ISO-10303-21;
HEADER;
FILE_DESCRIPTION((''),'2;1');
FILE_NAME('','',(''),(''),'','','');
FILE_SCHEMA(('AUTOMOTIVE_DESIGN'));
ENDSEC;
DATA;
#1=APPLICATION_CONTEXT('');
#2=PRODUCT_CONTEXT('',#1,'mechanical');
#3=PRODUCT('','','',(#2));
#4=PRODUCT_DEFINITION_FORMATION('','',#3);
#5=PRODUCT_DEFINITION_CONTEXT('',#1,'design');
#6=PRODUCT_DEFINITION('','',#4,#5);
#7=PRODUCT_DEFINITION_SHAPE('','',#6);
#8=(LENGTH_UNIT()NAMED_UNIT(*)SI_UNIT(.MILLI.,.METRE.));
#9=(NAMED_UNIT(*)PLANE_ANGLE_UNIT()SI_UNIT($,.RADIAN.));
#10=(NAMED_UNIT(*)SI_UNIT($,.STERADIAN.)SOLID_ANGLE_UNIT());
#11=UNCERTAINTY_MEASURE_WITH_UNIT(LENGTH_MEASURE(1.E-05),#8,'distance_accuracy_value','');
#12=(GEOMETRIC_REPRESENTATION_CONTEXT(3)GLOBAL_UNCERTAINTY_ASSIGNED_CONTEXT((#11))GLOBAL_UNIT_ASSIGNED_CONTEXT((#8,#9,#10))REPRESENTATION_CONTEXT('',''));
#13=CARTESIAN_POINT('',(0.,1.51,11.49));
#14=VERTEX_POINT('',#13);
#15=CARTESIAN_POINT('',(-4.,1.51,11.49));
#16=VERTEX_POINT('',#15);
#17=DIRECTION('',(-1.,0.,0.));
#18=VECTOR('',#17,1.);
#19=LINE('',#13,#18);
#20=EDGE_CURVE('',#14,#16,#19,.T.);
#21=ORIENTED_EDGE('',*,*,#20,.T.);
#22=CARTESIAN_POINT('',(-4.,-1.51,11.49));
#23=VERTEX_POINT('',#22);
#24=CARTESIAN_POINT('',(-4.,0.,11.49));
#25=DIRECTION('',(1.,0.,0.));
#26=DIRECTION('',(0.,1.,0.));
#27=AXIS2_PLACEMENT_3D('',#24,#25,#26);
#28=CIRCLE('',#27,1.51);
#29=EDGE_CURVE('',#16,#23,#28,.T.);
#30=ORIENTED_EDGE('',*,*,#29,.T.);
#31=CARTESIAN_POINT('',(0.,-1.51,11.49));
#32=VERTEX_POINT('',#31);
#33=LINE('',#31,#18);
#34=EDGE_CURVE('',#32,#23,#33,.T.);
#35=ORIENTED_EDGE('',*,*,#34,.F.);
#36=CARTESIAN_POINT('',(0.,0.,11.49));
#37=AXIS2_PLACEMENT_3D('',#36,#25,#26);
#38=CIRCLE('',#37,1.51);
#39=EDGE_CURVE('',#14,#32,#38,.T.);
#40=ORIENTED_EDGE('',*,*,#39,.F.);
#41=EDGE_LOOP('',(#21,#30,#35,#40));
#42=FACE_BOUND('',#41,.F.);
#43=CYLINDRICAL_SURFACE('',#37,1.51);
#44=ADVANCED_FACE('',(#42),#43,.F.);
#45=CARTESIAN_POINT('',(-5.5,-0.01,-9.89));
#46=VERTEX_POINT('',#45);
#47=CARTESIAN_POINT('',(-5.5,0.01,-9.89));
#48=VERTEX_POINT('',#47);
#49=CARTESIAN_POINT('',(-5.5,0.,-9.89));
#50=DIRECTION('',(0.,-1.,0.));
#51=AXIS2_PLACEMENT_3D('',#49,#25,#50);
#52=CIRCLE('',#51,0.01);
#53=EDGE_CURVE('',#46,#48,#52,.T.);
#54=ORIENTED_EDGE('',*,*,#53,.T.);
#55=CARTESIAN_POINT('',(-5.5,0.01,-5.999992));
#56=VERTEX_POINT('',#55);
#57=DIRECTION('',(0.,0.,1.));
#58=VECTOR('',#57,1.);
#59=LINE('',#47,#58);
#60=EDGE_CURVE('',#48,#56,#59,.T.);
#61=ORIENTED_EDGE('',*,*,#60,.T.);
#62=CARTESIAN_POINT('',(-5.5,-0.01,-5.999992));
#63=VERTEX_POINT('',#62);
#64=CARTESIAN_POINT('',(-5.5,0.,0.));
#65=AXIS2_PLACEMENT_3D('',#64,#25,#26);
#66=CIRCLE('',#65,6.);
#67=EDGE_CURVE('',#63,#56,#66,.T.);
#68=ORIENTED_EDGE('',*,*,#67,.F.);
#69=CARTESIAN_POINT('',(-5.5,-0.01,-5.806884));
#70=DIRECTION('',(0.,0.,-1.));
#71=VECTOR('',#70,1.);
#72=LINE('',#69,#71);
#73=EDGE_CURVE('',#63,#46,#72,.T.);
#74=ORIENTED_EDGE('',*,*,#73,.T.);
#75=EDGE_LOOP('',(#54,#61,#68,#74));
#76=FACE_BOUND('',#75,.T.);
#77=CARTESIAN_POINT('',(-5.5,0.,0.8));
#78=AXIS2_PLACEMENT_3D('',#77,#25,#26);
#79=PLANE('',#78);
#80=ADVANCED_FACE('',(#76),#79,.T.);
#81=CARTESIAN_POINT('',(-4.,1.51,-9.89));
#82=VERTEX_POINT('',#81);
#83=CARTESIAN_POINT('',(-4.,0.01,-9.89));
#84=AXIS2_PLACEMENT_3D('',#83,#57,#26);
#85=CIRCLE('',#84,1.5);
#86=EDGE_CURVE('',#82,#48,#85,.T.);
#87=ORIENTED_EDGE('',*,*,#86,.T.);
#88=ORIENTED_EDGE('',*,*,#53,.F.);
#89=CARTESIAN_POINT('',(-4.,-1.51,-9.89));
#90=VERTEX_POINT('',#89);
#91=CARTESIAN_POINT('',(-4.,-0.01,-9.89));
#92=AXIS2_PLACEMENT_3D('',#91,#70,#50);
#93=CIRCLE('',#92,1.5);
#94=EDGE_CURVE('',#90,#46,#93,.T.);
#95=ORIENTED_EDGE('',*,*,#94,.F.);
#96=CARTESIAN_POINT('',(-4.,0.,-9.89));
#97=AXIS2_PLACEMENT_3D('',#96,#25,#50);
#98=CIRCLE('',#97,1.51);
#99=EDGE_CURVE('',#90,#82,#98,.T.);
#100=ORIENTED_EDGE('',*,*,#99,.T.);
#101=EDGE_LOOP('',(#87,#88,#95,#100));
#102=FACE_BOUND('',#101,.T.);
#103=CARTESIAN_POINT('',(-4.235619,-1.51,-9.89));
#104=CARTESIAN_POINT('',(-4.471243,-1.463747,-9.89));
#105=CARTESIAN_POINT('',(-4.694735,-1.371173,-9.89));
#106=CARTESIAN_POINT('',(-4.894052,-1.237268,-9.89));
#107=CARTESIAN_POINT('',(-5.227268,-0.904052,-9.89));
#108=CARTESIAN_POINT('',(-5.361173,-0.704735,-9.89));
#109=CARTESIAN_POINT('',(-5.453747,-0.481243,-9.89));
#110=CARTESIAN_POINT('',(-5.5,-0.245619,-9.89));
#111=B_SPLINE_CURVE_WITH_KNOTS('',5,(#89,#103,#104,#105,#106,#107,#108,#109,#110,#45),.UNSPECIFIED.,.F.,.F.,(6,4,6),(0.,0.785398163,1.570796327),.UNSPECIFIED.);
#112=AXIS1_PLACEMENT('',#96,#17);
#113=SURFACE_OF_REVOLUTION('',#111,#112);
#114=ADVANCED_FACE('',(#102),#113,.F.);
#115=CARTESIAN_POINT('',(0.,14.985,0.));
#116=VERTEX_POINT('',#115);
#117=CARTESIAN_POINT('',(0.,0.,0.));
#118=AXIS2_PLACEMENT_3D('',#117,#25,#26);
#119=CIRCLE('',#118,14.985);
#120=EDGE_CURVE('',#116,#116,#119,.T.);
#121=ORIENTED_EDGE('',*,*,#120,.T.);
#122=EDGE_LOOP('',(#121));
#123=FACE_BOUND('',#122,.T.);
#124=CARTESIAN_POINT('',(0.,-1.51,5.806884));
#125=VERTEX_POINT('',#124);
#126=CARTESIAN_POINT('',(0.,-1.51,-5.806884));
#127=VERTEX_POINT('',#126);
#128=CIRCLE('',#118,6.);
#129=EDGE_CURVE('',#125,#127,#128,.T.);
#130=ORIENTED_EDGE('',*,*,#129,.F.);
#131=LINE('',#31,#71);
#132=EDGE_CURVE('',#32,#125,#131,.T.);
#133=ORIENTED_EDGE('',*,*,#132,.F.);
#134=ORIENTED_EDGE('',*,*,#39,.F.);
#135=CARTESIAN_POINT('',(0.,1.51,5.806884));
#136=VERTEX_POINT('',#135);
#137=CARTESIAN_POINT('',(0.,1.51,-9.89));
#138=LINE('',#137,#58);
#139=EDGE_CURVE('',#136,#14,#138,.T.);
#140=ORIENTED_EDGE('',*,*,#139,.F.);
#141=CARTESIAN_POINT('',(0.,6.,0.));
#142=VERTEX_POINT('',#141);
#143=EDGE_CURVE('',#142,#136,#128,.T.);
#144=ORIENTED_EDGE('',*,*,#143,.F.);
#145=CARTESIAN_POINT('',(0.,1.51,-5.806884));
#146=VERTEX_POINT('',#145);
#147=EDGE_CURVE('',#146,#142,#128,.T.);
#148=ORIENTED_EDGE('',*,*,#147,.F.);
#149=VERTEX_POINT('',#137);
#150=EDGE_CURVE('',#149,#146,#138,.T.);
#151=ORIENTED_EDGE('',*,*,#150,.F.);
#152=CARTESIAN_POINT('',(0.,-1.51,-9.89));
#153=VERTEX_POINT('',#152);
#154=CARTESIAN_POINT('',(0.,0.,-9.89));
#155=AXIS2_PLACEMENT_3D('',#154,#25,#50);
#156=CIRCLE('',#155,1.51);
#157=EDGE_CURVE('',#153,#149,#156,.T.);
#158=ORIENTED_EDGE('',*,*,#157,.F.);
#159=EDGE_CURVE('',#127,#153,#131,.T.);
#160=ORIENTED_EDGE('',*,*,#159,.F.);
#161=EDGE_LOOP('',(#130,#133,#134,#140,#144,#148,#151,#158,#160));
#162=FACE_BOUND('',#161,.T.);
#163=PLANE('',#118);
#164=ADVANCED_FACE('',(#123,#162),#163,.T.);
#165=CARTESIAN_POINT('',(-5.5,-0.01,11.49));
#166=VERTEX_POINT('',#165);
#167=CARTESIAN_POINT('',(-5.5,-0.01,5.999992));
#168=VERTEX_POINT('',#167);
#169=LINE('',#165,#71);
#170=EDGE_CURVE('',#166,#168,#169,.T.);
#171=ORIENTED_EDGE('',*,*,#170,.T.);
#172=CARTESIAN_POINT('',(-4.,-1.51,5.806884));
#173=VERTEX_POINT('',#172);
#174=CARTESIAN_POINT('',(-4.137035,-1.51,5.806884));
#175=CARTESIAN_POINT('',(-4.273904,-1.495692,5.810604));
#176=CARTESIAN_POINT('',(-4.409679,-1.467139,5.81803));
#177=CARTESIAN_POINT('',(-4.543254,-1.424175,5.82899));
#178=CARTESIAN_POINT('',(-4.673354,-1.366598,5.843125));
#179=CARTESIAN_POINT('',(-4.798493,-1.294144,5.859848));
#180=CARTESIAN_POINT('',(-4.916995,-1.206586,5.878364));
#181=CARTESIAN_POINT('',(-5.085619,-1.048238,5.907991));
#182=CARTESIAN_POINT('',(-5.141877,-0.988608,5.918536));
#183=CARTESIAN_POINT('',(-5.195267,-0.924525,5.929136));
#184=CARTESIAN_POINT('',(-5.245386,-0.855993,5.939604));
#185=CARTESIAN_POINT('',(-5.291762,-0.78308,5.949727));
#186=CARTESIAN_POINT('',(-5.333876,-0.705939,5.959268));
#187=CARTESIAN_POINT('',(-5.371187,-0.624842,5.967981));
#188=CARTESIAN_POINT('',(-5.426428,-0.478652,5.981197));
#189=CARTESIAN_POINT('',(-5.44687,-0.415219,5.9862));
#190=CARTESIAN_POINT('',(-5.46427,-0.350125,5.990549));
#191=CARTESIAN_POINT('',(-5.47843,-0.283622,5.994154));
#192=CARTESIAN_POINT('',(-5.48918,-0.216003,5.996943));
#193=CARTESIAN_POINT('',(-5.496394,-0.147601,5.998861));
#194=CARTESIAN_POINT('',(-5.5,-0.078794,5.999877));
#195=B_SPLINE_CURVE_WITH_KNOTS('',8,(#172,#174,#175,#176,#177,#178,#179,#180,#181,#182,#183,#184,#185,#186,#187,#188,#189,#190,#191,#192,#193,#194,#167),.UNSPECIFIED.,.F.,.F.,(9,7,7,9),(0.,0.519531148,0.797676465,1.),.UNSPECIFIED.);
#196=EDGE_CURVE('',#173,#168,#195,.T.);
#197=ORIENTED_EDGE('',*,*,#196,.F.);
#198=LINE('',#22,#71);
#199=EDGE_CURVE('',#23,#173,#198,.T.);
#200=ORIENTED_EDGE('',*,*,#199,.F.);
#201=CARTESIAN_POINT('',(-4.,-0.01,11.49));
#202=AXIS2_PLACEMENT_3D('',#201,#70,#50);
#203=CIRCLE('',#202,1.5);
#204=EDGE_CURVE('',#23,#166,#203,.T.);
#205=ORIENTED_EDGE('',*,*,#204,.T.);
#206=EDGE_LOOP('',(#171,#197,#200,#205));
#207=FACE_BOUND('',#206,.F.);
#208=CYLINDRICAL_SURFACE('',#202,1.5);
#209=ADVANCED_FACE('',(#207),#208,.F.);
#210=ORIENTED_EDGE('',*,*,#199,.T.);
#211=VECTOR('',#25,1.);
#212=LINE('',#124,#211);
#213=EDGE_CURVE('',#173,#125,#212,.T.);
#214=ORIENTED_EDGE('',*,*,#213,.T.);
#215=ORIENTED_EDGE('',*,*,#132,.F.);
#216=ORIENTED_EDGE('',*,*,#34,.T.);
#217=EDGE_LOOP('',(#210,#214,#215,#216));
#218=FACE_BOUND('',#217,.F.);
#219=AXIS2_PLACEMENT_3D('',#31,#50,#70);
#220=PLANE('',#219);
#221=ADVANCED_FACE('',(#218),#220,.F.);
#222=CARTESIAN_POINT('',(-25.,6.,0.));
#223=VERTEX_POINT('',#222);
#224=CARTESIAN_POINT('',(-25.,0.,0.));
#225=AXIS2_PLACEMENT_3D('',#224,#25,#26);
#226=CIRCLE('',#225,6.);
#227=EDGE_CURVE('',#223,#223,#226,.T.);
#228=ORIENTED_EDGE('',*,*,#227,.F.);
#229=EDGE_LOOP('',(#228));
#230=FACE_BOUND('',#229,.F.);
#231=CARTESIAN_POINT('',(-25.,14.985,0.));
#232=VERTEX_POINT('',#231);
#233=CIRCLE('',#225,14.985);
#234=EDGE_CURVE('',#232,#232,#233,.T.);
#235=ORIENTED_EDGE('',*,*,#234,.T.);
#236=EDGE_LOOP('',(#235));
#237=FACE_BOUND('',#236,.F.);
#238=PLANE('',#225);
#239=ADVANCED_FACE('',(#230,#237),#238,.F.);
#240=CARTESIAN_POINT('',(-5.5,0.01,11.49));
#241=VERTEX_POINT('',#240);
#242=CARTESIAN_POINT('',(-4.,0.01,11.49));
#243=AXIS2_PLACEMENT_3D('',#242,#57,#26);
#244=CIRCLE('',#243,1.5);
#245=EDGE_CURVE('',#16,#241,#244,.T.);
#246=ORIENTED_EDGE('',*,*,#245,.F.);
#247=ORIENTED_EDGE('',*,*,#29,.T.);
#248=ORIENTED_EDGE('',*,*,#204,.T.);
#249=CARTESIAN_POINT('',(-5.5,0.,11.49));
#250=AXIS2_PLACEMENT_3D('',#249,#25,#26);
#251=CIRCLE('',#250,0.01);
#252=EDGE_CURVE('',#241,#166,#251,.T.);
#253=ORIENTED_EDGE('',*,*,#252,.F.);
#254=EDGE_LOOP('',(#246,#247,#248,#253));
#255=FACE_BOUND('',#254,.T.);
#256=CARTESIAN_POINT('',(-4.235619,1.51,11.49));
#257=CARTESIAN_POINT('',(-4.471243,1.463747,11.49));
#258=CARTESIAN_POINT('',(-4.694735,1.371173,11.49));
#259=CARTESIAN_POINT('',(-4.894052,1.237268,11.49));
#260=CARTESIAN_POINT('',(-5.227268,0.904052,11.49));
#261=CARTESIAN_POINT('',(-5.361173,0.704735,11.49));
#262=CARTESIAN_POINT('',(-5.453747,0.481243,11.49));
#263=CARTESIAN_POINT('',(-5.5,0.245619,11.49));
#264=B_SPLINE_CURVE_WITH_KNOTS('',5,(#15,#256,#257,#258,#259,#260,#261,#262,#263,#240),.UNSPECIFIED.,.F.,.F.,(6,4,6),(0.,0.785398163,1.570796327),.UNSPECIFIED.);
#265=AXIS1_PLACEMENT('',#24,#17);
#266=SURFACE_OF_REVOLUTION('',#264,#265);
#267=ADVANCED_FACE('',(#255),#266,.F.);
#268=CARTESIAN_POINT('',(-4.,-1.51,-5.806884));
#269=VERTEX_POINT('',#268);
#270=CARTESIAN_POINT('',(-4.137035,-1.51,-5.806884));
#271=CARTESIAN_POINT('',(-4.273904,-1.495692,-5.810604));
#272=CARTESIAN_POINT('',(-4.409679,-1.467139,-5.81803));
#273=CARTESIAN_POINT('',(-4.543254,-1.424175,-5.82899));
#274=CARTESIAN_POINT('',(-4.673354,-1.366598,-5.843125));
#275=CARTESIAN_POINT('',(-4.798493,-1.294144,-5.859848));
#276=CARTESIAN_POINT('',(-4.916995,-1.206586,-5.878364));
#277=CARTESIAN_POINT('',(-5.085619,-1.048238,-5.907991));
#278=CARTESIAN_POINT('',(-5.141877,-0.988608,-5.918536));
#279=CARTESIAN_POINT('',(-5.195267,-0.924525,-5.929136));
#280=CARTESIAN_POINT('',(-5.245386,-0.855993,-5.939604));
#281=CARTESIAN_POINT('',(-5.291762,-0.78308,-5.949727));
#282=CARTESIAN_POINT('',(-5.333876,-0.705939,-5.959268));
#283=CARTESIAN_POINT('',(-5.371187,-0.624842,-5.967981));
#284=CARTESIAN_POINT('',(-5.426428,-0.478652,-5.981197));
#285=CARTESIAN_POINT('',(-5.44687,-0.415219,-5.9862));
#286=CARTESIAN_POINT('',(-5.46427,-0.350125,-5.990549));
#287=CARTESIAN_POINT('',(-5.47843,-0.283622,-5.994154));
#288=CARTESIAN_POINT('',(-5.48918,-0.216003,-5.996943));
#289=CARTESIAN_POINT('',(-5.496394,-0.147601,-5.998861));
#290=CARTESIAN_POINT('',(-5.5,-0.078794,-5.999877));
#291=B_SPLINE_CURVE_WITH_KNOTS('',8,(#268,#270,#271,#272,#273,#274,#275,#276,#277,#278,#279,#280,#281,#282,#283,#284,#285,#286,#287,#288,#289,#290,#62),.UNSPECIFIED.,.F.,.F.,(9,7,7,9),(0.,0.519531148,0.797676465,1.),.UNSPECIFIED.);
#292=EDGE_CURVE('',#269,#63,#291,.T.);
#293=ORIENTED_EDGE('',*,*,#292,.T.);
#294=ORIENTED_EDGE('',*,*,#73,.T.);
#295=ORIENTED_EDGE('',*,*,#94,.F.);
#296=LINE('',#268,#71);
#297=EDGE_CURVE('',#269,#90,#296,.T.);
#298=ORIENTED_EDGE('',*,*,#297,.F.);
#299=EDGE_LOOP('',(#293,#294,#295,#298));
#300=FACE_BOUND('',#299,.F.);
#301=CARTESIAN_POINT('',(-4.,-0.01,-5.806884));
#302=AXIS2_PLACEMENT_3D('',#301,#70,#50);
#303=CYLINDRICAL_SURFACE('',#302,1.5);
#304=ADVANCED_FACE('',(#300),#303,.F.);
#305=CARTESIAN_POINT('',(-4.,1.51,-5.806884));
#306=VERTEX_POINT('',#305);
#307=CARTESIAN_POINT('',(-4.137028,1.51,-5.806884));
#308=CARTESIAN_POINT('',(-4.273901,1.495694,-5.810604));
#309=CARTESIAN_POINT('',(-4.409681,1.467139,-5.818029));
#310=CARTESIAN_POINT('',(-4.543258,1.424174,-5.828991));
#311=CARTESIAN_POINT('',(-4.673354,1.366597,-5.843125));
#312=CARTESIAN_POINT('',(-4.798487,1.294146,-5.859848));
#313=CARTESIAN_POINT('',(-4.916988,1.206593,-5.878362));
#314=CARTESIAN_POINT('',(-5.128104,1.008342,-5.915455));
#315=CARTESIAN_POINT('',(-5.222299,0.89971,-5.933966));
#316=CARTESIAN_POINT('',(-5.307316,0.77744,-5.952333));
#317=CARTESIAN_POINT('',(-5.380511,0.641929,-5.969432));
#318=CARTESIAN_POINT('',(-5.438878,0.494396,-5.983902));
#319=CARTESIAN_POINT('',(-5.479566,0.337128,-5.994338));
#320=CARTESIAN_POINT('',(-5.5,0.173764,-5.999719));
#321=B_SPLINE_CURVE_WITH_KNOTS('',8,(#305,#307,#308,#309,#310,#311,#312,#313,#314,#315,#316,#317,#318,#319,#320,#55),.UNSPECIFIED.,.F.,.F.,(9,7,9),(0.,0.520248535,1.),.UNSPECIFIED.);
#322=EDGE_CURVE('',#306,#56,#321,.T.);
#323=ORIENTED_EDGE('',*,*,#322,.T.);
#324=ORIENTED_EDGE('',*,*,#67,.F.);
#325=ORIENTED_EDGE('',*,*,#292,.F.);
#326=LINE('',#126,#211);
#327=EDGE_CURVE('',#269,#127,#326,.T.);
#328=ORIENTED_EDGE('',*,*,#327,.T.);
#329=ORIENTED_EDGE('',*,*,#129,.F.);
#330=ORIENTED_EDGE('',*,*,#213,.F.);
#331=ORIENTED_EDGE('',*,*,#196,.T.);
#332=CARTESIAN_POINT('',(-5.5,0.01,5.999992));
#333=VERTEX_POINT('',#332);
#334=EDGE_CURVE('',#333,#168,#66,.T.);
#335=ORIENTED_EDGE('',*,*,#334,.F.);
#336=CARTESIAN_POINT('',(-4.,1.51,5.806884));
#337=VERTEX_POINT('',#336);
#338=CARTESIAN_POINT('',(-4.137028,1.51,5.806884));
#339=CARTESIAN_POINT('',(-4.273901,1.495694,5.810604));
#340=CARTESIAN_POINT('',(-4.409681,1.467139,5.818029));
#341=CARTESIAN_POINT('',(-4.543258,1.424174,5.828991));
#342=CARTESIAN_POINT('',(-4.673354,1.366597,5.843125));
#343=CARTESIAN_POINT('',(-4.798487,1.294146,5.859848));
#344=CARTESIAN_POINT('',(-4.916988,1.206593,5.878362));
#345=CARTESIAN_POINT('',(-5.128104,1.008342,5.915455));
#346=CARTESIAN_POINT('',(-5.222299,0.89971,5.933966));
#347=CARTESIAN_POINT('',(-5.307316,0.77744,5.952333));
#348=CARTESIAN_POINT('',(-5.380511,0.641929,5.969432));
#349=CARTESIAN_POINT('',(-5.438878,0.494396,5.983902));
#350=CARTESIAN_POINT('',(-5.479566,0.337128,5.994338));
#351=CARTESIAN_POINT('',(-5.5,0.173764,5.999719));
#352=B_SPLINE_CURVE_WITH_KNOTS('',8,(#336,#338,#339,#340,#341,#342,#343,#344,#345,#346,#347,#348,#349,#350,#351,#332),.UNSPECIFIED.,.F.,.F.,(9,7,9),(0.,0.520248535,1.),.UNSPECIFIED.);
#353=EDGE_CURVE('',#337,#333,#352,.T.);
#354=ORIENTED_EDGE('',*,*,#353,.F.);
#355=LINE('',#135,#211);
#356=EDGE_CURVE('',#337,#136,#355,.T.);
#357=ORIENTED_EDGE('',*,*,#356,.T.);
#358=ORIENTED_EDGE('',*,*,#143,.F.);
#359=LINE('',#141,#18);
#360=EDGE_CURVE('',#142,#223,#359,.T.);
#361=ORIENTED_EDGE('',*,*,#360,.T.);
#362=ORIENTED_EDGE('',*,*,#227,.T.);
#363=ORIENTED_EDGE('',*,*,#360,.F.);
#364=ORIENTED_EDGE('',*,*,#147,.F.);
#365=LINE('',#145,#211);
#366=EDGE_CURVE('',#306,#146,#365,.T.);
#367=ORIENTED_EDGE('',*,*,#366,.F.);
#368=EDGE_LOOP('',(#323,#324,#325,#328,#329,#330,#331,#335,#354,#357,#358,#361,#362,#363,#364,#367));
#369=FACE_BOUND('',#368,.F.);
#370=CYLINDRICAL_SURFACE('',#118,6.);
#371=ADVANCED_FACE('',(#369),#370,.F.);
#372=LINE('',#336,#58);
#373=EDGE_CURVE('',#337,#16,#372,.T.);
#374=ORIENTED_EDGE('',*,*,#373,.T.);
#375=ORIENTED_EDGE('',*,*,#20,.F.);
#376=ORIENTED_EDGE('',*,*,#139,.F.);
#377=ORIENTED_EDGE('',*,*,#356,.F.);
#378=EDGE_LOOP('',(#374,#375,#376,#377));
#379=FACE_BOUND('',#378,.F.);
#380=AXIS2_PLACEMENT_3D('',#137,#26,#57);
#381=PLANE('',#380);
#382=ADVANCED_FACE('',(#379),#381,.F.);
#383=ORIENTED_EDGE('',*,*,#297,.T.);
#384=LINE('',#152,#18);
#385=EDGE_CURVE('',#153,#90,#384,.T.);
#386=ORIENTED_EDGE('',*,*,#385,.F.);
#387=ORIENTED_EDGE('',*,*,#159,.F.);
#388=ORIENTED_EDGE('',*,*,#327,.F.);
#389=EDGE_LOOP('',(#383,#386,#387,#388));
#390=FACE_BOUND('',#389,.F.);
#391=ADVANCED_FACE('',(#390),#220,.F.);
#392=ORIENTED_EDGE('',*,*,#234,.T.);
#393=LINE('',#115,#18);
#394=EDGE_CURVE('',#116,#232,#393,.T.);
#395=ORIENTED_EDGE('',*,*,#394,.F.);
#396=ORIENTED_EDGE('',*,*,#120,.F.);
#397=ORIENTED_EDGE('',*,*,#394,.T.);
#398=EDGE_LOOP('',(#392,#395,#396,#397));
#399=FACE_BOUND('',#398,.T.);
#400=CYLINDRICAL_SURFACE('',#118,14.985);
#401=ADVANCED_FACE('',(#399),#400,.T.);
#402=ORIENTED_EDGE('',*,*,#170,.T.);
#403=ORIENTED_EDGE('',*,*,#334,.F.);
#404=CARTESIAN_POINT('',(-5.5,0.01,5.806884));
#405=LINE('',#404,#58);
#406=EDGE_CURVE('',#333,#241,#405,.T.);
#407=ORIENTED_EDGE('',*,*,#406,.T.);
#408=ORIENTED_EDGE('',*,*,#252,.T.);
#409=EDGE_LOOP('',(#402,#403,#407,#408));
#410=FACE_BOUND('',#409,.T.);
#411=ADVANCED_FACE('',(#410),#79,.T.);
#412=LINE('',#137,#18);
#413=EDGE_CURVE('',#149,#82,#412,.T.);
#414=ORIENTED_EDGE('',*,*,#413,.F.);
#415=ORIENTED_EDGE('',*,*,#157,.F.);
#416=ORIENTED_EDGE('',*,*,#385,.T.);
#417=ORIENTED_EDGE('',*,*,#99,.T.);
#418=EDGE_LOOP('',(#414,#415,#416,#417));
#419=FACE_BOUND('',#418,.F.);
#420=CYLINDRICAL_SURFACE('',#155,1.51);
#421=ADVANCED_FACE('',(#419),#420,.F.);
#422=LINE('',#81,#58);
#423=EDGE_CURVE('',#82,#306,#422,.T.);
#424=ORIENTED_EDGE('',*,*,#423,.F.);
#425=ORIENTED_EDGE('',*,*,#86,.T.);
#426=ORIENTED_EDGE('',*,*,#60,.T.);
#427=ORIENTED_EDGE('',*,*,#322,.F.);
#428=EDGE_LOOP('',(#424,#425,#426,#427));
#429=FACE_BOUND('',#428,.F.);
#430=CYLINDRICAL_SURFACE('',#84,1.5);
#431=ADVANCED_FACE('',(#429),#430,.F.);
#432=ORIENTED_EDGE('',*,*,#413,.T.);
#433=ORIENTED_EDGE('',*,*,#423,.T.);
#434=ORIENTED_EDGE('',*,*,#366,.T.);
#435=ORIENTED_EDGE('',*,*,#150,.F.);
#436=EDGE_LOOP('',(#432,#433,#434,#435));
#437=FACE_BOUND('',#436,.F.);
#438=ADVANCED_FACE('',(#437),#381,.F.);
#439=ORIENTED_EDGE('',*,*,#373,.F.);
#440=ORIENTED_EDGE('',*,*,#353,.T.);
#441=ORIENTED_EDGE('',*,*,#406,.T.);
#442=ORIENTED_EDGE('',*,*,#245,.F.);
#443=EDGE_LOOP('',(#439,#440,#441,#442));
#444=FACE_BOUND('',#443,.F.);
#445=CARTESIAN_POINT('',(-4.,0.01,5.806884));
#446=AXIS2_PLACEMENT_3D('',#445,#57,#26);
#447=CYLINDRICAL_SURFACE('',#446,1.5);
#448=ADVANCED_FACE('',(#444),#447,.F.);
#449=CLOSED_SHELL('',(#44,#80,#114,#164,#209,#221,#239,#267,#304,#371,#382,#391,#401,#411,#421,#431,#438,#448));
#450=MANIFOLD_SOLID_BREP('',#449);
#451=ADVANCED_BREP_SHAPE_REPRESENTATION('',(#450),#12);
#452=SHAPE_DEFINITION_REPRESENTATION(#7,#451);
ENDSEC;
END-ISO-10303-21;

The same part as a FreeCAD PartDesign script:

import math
import FreeCAD as App
import Part
import Sketcher
from FreeCAD import Vector


def edges_at(feature, points):
    """Names of the edges that pass closest to the given points."""
    edges = feature.Shape.Edges
    near = lambda p: min(range(len(edges)), key=lambda i: edges[i].distToShape(Part.Vertex(*p))[0])
    return sorted({f"Edge{near(p) + 1}" for p in points})

doc = App.newDocument("Part")
body = doc.addObject("PartDesign::Body", "Body")

# Sketch on YZ plane
sketch1 = body.newObject("Sketcher::SketchObject", "Sketch")
sketch1.AttachmentSupport = (doc.getObject("YZ_Plane"), [""])
sketch1.MapMode = "FlatFace"
sketch1.addGeometry([
    Part.Circle(Vector(0, 0, 0), Vector(0, 0, 1), 14.985),
    Part.Circle(Vector(0, 0, 0), Vector(0, 0, 1), 6),
], False)
sketch1.addConstraint([
    Sketcher.Constraint("Coincident", 0, 3, -1, 1),
    Sketcher.Constraint("Coincident", 1, 3, -1, 1),
    Sketcher.Constraint("Diameter", 1, 12.0),
    Sketcher.Constraint("Diameter", 0, 29.97),
])
pad1 = body.newObject("PartDesign::Pad", "Pad")
pad1.Profile = sketch1
pad1.Length = 25
pad1.Reversed = True

# Sketch on YZ plane
sketch2 = body.newObject("Sketcher::SketchObject", "Sketch001")
sketch2.AttachmentSupport = (doc.getObject("YZ_Plane"), [""])
sketch2.MapMode = "FlatFace"
sketch2.addGeometry([
    Part.ArcOfCircle(Part.Circle(Vector(0, 11.49, 0), Vector(0, 0, 1), 1.51), math.radians(0), math.radians(180)),
    Part.LineSegment(Vector(-1.51, 11.49, 0), Vector(-1.51, -9.89, 0)),
    Part.ArcOfCircle(Part.Circle(Vector(0, -9.89, 0), Vector(0, 0, 1), 1.51), math.radians(180), math.radians(360)),
    Part.LineSegment(Vector(1.51, -9.89, 0), Vector(1.51, 11.49, 0)),
], False)
sketch2.addConstraint([
    Sketcher.Constraint("Tangent", 0, 2, 1, 1),
    Sketcher.Constraint("Tangent", 1, 2, 2, 1),
    Sketcher.Constraint("Tangent", 2, 2, 3, 1),
    Sketcher.Constraint("Tangent", 3, 2, 0, 1),
    Sketcher.Constraint("Vertical", 1),
    Sketcher.Constraint("Vertical", 3),
    Sketcher.Constraint("PointOnObject", 0, 3, -2),
    Sketcher.Constraint("Radius", 0, 1.51),
    Sketcher.Constraint("DistanceY", 1, 2, 1, 1, 21.38),
    Sketcher.Constraint("DistanceY", -1, 1, 0, 3, 11.49),
])
pocket1 = body.newObject("PartDesign::Pocket", "Pocket")
pocket1.Profile = sketch2
pocket1.Length = 5.5
doc.recompute()

fillet = body.newObject("PartDesign::Fillet", "Fillet")
fillet.Base = (pocket1, edges_at(pocket1, [(-5.5, 1.51, 8.648), (-5.5, 1.51, -7.848)]))
fillet.Radius = 1.5

doc.recompute()
